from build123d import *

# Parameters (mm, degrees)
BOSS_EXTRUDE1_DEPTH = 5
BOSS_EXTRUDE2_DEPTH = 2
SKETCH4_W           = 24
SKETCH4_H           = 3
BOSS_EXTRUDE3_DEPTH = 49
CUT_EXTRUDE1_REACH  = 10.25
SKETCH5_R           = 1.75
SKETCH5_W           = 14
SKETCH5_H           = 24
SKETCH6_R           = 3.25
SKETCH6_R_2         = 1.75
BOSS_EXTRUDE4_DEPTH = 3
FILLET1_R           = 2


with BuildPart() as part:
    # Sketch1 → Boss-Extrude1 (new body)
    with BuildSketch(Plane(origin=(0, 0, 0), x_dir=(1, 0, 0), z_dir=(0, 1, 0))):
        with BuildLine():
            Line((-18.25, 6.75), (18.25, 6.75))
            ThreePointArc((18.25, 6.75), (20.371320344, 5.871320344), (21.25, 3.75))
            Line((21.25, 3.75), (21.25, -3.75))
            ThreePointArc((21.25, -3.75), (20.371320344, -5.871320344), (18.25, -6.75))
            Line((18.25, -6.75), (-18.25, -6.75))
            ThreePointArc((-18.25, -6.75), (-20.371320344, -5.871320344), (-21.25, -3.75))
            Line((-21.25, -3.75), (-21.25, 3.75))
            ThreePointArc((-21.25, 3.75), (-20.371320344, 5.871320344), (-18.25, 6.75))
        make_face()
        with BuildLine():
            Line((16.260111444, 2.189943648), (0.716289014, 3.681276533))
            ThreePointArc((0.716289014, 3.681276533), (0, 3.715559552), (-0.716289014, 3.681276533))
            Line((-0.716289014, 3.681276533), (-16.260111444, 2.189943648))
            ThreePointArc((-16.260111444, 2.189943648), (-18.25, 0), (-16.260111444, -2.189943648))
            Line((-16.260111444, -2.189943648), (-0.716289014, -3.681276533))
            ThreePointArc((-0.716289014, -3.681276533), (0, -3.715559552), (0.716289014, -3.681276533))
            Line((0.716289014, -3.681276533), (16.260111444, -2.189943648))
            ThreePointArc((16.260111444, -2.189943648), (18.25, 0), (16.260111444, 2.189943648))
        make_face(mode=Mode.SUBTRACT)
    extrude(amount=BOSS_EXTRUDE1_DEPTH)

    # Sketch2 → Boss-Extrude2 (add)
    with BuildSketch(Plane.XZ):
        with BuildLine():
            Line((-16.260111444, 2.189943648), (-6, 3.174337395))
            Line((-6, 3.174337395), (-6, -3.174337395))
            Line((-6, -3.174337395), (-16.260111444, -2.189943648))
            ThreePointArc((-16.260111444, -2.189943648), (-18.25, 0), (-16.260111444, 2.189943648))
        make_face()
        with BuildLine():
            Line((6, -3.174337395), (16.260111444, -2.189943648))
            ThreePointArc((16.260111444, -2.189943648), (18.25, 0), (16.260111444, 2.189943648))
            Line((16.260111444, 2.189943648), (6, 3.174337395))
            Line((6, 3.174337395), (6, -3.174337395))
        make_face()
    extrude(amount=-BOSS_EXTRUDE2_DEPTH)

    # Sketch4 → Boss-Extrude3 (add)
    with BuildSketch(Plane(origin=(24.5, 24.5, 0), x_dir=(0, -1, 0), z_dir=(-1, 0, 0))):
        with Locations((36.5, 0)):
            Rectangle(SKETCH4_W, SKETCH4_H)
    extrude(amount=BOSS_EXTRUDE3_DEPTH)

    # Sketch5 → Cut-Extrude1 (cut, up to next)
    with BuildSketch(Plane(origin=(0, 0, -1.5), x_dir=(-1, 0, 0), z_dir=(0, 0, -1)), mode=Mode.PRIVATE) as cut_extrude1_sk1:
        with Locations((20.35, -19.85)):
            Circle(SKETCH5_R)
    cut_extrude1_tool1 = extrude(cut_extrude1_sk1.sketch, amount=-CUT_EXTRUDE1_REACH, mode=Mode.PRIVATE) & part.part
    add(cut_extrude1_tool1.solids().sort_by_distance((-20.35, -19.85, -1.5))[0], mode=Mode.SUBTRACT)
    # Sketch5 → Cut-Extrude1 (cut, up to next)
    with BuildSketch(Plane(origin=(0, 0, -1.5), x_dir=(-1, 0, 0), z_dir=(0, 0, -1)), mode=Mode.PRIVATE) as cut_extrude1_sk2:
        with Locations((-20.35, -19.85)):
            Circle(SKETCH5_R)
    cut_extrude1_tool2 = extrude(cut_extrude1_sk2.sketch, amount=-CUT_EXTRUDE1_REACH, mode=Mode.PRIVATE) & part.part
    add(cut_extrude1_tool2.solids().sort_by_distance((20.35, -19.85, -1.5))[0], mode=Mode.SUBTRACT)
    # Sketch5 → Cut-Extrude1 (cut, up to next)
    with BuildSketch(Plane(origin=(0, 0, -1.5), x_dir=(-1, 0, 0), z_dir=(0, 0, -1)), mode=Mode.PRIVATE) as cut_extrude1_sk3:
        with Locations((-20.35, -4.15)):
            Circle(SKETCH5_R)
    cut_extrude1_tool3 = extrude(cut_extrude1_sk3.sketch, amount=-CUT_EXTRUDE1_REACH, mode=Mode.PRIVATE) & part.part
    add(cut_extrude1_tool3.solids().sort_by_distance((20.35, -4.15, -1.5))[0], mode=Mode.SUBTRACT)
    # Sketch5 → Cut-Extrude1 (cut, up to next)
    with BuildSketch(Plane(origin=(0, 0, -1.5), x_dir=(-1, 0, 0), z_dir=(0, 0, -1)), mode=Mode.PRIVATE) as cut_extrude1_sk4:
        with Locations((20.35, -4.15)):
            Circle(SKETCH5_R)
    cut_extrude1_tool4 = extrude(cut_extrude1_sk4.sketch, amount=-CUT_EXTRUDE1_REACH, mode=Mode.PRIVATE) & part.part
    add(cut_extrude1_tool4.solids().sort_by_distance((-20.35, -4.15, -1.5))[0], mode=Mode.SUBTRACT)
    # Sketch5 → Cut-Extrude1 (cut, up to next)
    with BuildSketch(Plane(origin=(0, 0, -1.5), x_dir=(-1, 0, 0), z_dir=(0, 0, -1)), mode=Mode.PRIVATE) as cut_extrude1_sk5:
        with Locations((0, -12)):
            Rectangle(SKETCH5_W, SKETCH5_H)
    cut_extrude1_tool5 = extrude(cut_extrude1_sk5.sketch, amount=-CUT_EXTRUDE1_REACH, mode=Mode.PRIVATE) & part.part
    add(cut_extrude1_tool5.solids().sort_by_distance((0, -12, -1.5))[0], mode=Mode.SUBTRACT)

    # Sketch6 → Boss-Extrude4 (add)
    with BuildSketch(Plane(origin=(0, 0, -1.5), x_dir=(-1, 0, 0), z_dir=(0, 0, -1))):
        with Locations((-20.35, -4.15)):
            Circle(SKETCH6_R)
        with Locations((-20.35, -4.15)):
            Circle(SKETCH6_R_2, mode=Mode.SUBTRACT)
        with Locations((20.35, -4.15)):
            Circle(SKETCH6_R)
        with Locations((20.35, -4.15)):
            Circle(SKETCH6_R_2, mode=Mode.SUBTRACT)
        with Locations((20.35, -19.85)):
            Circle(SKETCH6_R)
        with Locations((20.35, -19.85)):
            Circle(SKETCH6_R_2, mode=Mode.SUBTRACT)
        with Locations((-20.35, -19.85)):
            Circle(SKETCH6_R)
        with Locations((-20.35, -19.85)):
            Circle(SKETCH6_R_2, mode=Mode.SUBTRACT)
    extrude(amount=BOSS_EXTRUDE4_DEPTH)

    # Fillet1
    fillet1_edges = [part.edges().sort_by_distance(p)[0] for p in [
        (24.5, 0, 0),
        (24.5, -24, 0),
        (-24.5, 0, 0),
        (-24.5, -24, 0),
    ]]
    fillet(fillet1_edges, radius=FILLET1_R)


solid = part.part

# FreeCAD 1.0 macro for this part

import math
import FreeCAD as App
import Part
import Sketcher
from FreeCAD import Vector


def edges_at(feature, points):
    """Names of the edges that pass closest to the given points."""
    edges = feature.Shape.Edges
    near = lambda p: min(range(len(edges)), key=lambda i: edges[i].distToShape(Part.Vertex(*p))[0])
    return sorted({f"Edge{near(p) + 1}" for p in points})


def add_polygon(sketch, points):
    """Adds a closed chain of lines whose ends are joined by coincident constraints."""
    first, n = sketch.GeometryCount, len(points)
    for a, b in zip(points, points[1:] + points[:1]):
        sketch.addGeometry(Part.LineSegment(App.Vector(*a, 0), App.Vector(*b, 0)), False)
    for i in range(n):
        sketch.addConstraint(Sketcher.Constraint("Coincident", first + i, 2, first + (i + 1) % n, 1))

doc = App.newDocument("Part")
body = doc.addObject("PartDesign::Body", "Body")

sketch1 = doc.addObject("Sketcher::SketchObject", "Sketch")
body.addObject(sketch1)
sketch1.AttachmentSupport = (doc.XZ_Plane, [""])
sketch1.MapMode = "FlatFace"
sketch1.addGeometry(Part.LineSegment(Vector(18.2, -6.8, 0), Vector(-18.2, -6.8, 0)), False)
sketch1.addGeometry(Part.ArcOfCircle(Part.Circle(Vector(-18.3, -3.8, 0), Vector(0, 0, 1), 3), math.radians(180), math.radians(270)), False)
sketch1.addGeometry(Part.LineSegment(Vector(-21.2, -3.8, 0), Vector(-21.2, 3.8, 0)), False)
sketch1.addGeometry(Part.ArcOfCircle(Part.Circle(Vector(-18.3, 3.8, 0), Vector(0, 0, 1), 3), math.radians(90), math.radians(180)), False)
sketch1.addGeometry(Part.LineSegment(Vector(-18.2, 6.8, 0), Vector(18.2, 6.8, 0)), False)
sketch1.addGeometry(Part.ArcOfCircle(Part.Circle(Vector(18.3, 3.8, 0), Vector(0, 0, 1), 3), math.radians(0), math.radians(90)), False)
sketch1.addGeometry(Part.LineSegment(Vector(21.2, 3.8, 0), Vector(21.2, -3.8, 0)), False)
sketch1.addGeometry(Part.ArcOfCircle(Part.Circle(Vector(18.3, -3.8, 0), Vector(0, 0, 1), 3), math.radians(-90), math.radians(0)), False)
sketch1.addGeometry(Part.ArcOfCircle(Part.Circle(Vector(16.1, 0, 0), Vector(0, 0, 1), 2.2), math.radians(-85), math.radians(85)), False)
sketch1.addGeometry(Part.LineSegment(Vector(16.3, 2.2, 0), Vector(0.7, 3.7, 0)), False)
sketch1.addGeometry(Part.ArcOfCircle(Part.Circle(Vector(0, -3.8, 0), Vector(0, 0, 1), 7.5), math.radians(84.52), math.radians(95.48)), False)
sketch1.addGeometry(Part.LineSegment(Vector(-0.7, 3.7, 0), Vector(-16.3, 2.2, 0)), False)
sketch1.addGeometry(Part.ArcOfCircle(Part.Circle(Vector(-16.1, 0, 0), Vector(0, 0, 1), 2.2), math.radians(95), math.radians(265)), False)
sketch1.addGeometry(Part.LineSegment(Vector(-16.3, -2.2, 0), Vector(-0.7, -3.7, 0)), False)
sketch1.addGeometry(Part.ArcOfCircle(Part.Circle(Vector(0, 3.8, 0), Vector(0, 0, 1), 7.5), math.radians(-95.48), math.radians(-84.52)), False)
sketch1.addGeometry(Part.LineSegment(Vector(0.7, -3.7, 0), Vector(16.3, -2.2, 0)), False)
sketch1.addConstraint(Sketcher.Constraint("Tangent", 0, 2, 1, 2))
sketch1.addConstraint(Sketcher.Constraint("Tangent", 1, 1, 2, 1))
sketch1.addConstraint(Sketcher.Constraint("Tangent", 2, 2, 3, 2))
sketch1.addConstraint(Sketcher.Constraint("Tangent", 3, 1, 4, 1))
sketch1.addConstraint(Sketcher.Constraint("Tangent", 4, 2, 5, 2))
sketch1.addConstraint(Sketcher.Constraint("Tangent", 5, 1, 6, 1))
sketch1.addConstraint(Sketcher.Constraint("Tangent", 6, 2, 7, 2))
sketch1.addConstraint(Sketcher.Constraint("Tangent", 7, 1, 0, 1))
sketch1.addConstraint(Sketcher.Constraint("Tangent", 8, 2, 9, 1))
sketch1.addConstraint(Sketcher.Constraint("Tangent", 9, 2, 10, 1))
sketch1.addConstraint(Sketcher.Constraint("Tangent", 10, 2, 11, 1))
sketch1.addConstraint(Sketcher.Constraint("Tangent", 11, 2, 12, 1))
sketch1.addConstraint(Sketcher.Constraint("Tangent", 12, 2, 13, 1))
sketch1.addConstraint(Sketcher.Constraint("Tangent", 13, 2, 14, 1))
sketch1.addConstraint(Sketcher.Constraint("Tangent", 14, 2, 15, 1))
sketch1.addConstraint(Sketcher.Constraint("Tangent", 15, 2, 8, 1))
sketch1.addConstraint(Sketcher.Constraint("Horizontal", 0))
sketch1.addConstraint(Sketcher.Constraint("Vertical", 2))
sketch1.addConstraint(Sketcher.Constraint("Horizontal", 4))
sketch1.addConstraint(Sketcher.Constraint("Vertical", 6))
sketch1.addConstraint(Sketcher.Constraint("Equal", 1, 3))
sketch1.addConstraint(Sketcher.Constraint("Equal", 3, 5))
sketch1.addConstraint(Sketcher.Constraint("Equal", 5, 7))
sketch1.addConstraint(Sketcher.Constraint("Equal", 8, 12))
sketch1.addConstraint(Sketcher.Constraint("Equal", 10, 14))
sketch1.addConstraint(Sketcher.Constraint("Symmetric", 1, 3, 5, 3, -1, 1))
sketch1.addConstraint(Sketcher.Constraint("Symmetric", 8, 3, 12, 3, -1, 1))
sketch1.addConstraint(Sketcher.Constraint("Symmetric", 10, 3, 14, 3, -1, 1))
sketch1.addConstraint(Sketcher.Constraint("Symmetric", 9, 2, 10, 2, -2))
sketch1.addConstraint(Sketcher.Constraint("Radius", 1, 3.0))
sketch1.addConstraint(Sketcher.Constraint("Radius", 8, 2.2))
sketch1.addConstraint(Sketcher.Constraint("Radius", 10, 7.5))
sketch1.addConstraint(Sketcher.Constraint("DistanceX", 0, 2, 0, 1, 36.5))
sketch1.addConstraint(Sketcher.Constraint("DistanceY", 2, 1, 2, 2, 7.5))
sketch1.addConstraint(Sketcher.Constraint("DistanceX", 8, 3, 5, 3, 2.2))
sketch1.addConstraint(Sketcher.Constraint("Distance", 9, 15.615201))
pad1 = doc.addObject("PartDesign::Pad", "Pad")
body.addObject(pad1)
pad1.Profile = sketch1
pad1.Length = 5
pad1.Reversed = True

sketch2 = doc.addObject("Sketcher::SketchObject", "Sketch001")
body.addObject(sketch2)
sketch2.AttachmentSupport = (doc.XZ_Plane, [""])
sketch2.MapMode = "FlatFace"
sketch2.addGeometry(Part.LineSegment(Vector(-6, 3.2, 0), Vector(-16.3, 2.2, 0)), False)
sketch2.addGeometry(Part.ArcOfCircle(Part.Circle(Vector(-16.1, 0, 0), Vector(0, 0, 1), 2.2), math.radians(95), math.radians(265)), False)
sketch2.addGeometry(Part.LineSegment(Vector(-16.3, -2.2, 0), Vector(-6, -3.2, 0)), False)
sketch2.addGeometry(Part.LineSegment(Vector(-6, -3.2, 0), Vector(-6, 3.2, 0)), False)
sketch2.addGeometry(Part.LineSegment(Vector(6, -3.2, 0), Vector(16.3, -2.2, 0)), False)
sketch2.addGeometry(Part.ArcOfCircle(Part.Circle(Vector(16.1, 0, 0), Vector(0, 0, 1), 2.2), math.radians(-85), math.radians(85)), False)
sketch2.addGeometry(Part.LineSegment(Vector(16.3, 2.2, 0), Vector(6, 3.2, 0)), False)
sketch2.addGeometry(Part.LineSegment(Vector(6, 3.2, 0), Vector(6, -3.2, 0)), False)
sketch2.addConstraint(Sketcher.Constraint("Tangent", 0, 2, 1, 1))
sketch2.addConstraint(Sketcher.Constraint("Tangent", 1, 2, 2, 1))
sketch2.addConstraint(Sketcher.Constraint("Coincident", 2, 2, 3, 1))
sketch2.addConstraint(Sketcher.Constraint("Coincident", 3, 2, 0, 1))
sketch2.addConstraint(Sketcher.Constraint("Tangent", 4, 2, 5, 1))
sketch2.addConstraint(Sketcher.Constraint("Tangent", 5, 2, 6, 1))
sketch2.addConstraint(Sketcher.Constraint("Coincident", 6, 2, 7, 1))
sketch2.addConstraint(Sketcher.Constraint("Coincident", 7, 2, 4, 1))
sketch2.addConstraint(Sketcher.Constraint("Vertical", 3))
sketch2.addConstraint(Sketcher.Constraint("Vertical", 7))
sketch2.addConstraint(Sketcher.Constraint("Equal", 1, 5))
sketch2.addConstraint(Sketcher.Constraint("Symmetric", 1, 3, 5, 3, -1, 1))
sketch2.addConstraint(Sketcher.Constraint("Symmetric", 2, 2, 6, 2, -1, 1))
sketch2.addConstraint(Sketcher.Constraint("Symmetric", 1, 2, 4, 2, -2))
sketch2.addConstraint(Sketcher.Constraint("Parallel", 0, 4))
sketch2.addConstraint(Sketcher.Constraint("Radius", 1, 2.2))
sketch2.addConstraint(Sketcher.Constraint("DistanceX", 2, 2, -1, 1, 6.0))
sketch2.addConstraint(Sketcher.Constraint("DistanceX", 1, 3, 5, 3, 32.1))
sketch2.addConstraint(Sketcher.Constraint("DistanceY", 3, 1, 3, 2, 6.348675))
pad2 = doc.addObject("PartDesign::Pad", "Pad001")
body.addObject(pad2)
pad2.Profile = sketch2
pad2.Length = 2
pad2.Reversed = True

sketch3 = doc.addObject("Sketcher::SketchObject", "Sketch002")
body.addObject(sketch3)
sketch3.AttachmentSupport = (doc.YZ_Plane, [""])
sketch3.MapMode = "FlatFace"
sketch3.AttachmentOffset = App.Placement(Vector(0, 0, 24.5), App.Rotation())
add_polygon(sketch3, [(0, 1.5), (0, -1.5), (-24, -1.5), (-24, 1.5)])
sketch3.addConstraint(Sketcher.Constraint("Vertical", 0))
sketch3.addConstraint(Sketcher.Constraint("Horizontal", 1))
sketch3.addConstraint(Sketcher.Constraint("Vertical", 2))
sketch3.addConstraint(Sketcher.Constraint("Horizontal", 3))
sketch3.addConstraint(Sketcher.Constraint("Symmetric", 0, 2, 3, 2, -1, 1))
sketch3.addConstraint(Sketcher.Constraint("DistanceX", 1, 2, 1, 1, 24.0))
sketch3.addConstraint(Sketcher.Constraint("DistanceY", 0, 2, 0, 1, 3.0))
pad3 = doc.addObject("PartDesign::Pad", "Pad002")
body.addObject(pad3)
pad3.Profile = sketch3
pad3.Length = 49
pad3.Reversed = True

sketch4 = doc.addObject("Sketcher::SketchObject", "Sketch003")
body.addObject(sketch4)
sketch4.AttachmentSupport = (doc.XY_Plane, [""])
sketch4.MapMode = "FlatFace"
sketch4.AttachmentOffset = App.Placement(Vector(0, 0, -1.5), App.Rotation())
sketch4.addGeometry(Part.Circle(Vector(-20.4, -19.9, 0), Vector(0, 0, 1), 1.8), False)
sketch4.addConstraint(Sketcher.Constraint("Diameter", 0, 3.5))
sketch4.addConstraint(Sketcher.Constraint("DistanceX", 0, 3, -1, 1, 20.35))
sketch4.addConstraint(Sketcher.Constraint("DistanceY", 0, 3, -1, 1, 19.85))
pocket1 = doc.addObject("PartDesign::Pocket", "Pocket")
body.addObject(pocket1)
pocket1.Profile = sketch4
pocket1.Type = "UpToFirst"
pocket1.Reversed = True

sketch5 = doc.addObject("Sketcher::SketchObject", "Sketch004")
body.addObject(sketch5)
sketch5.AttachmentSupport = (doc.XY_Plane, [""])
sketch5.MapMode = "FlatFace"
sketch5.AttachmentOffset = App.Placement(Vector(0, 0, -1.5), App.Rotation())
sketch5.addGeometry(Part.Circle(Vector(20.4, -19.9, 0), Vector(0, 0, 1), 1.8), False)
sketch5.addConstraint(Sketcher.Constraint("Diameter", 0, 3.5))
sketch5.addConstraint(Sketcher.Constraint("DistanceX", -1, 1, 0, 3, 20.35))
sketch5.addConstraint(Sketcher.Constraint("DistanceY", 0, 3, -1, 1, 19.85))
pocket2 = doc.addObject("PartDesign::Pocket", "Pocket001")
body.addObject(pocket2)
pocket2.Profile = sketch5
pocket2.Type = "UpToFirst"
pocket2.Reversed = True

sketch6 = doc.addObject("Sketcher::SketchObject", "Sketch005")
body.addObject(sketch6)
sketch6.AttachmentSupport = (doc.XY_Plane, [""])
sketch6.MapMode = "FlatFace"
sketch6.AttachmentOffset = App.Placement(Vector(0, 0, -1.5), App.Rotation())
sketch6.addGeometry(Part.Circle(Vector(20.4, -4.2, 0), Vector(0, 0, 1), 1.8), False)
sketch6.addConstraint(Sketcher.Constraint("Diameter", 0, 3.5))
sketch6.addConstraint(Sketcher.Constraint("DistanceX", -1, 1, 0, 3, 20.35))
sketch6.addConstraint(Sketcher.Constraint("DistanceY", 0, 3, -1, 1, 4.15))
pocket3 = doc.addObject("PartDesign::Pocket", "Pocket002")
body.addObject(pocket3)
pocket3.Profile = sketch6
pocket3.Type = "UpToFirst"
pocket3.Reversed = True

sketch7 = doc.addObject("Sketcher::SketchObject", "Sketch006")
body.addObject(sketch7)
sketch7.AttachmentSupport = (doc.XY_Plane, [""])
sketch7.MapMode = "FlatFace"
sketch7.AttachmentOffset = App.Placement(Vector(0, 0, -1.5), App.Rotation())
sketch7.addGeometry(Part.Circle(Vector(-20.4, -4.2, 0), Vector(0, 0, 1), 1.8), False)
sketch7.addConstraint(Sketcher.Constraint("Diameter", 0, 3.5))
sketch7.addConstraint(Sketcher.Constraint("DistanceX", 0, 3, -1, 1, 20.35))
sketch7.addConstraint(Sketcher.Constraint("DistanceY", 0, 3, -1, 1, 4.15))
pocket4 = doc.addObject("PartDesign::Pocket", "Pocket003")
body.addObject(pocket4)
pocket4.Profile = sketch7
pocket4.Type = "UpToFirst"
pocket4.Reversed = True

sketch8 = doc.addObject("Sketcher::SketchObject", "Sketch007")
body.addObject(sketch8)
sketch8.AttachmentSupport = (doc.XY_Plane, [""])
sketch8.MapMode = "FlatFace"
sketch8.AttachmentOffset = App.Placement(Vector(0, 0, -1.5), App.Rotation())
add_polygon(sketch8, [(7, 0), (7, -24), (-7, -24), (-7, 0)])
sketch8.addConstraint(Sketcher.Constraint("Vertical", 0))
sketch8.addConstraint(Sketcher.Constraint("Horizontal", 1))
sketch8.addConstraint(Sketcher.Constraint("Vertical", 2))
sketch8.addConstraint(Sketcher.Constraint("Horizontal", 3))
sketch8.addConstraint(Sketcher.Constraint("Symmetric", 2, 2, 3, 2, -1, 1))
sketch8.addConstraint(Sketcher.Constraint("DistanceX", 1, 2, 1, 1, 14.0))
sketch8.addConstraint(Sketcher.Constraint("DistanceY", 0, 2, 0, 1, 24.0))
pocket5 = doc.addObject("PartDesign::Pocket", "Pocket004")
body.addObject(pocket5)
pocket5.Profile = sketch8
pocket5.Type = "UpToFirst"
pocket5.Reversed = True

sketch9 = doc.addObject("Sketcher::SketchObject", "Sketch008")
body.addObject(sketch9)
sketch9.AttachmentSupport = (doc.XY_Plane, [""])
sketch9.MapMode = "FlatFace"
sketch9.AttachmentOffset = App.Placement(Vector(0, 0, -1.5), App.Rotation())
sketch9.addGeometry(Part.Circle(Vector(20.4, -4.2, 0), Vector(0, 0, 1), 3.2), False)
sketch9.addGeometry(Part.Circle(Vector(20.4, -4.2, 0), Vector(0, 0, 1), 1.8), False)
sketch9.addGeometry(Part.Circle(Vector(-20.4, -4.2, 0), Vector(0, 0, 1), 3.2), False)
sketch9.addGeometry(Part.Circle(Vector(-20.4, -4.2, 0), Vector(0, 0, 1), 1.8), False)
sketch9.addGeometry(Part.Circle(Vector(-20.4, -19.9, 0), Vector(0, 0, 1), 3.2), False)
sketch9.addGeometry(Part.Circle(Vector(-20.4, -19.9, 0), Vector(0, 0, 1), 1.8), False)
sketch9.addGeometry(Part.Circle(Vector(20.4, -19.9, 0), Vector(0, 0, 1), 3.2), False)
sketch9.addGeometry(Part.Circle(Vector(20.4, -19.9, 0), Vector(0, 0, 1), 1.8), False)
sketch9.addConstraint(Sketcher.Constraint("Coincident", 1, 3, 0, 3))
sketch9.addConstraint(Sketcher.Constraint("Coincident", 3, 3, 2, 3))
sketch9.addConstraint(Sketcher.Constraint("Coincident", 5, 3, 4, 3))
sketch9.addConstraint(Sketcher.Constraint("Coincident", 7, 3, 6, 3))
sketch9.addConstraint(Sketcher.Constraint("Equal", 0, 2))
sketch9.addConstraint(Sketcher.Constraint("Equal", 1, 3))
sketch9.addConstraint(Sketcher.Constraint("Equal", 2, 4))
sketch9.addConstraint(Sketcher.Constraint("Equal", 3, 5))
sketch9.addConstraint(Sketcher.Constraint("Equal", 4, 6))
sketch9.addConstraint(Sketcher.Constraint("Equal", 5, 7))
sketch9.addConstraint(Sketcher.Constraint("Symmetric", 0, 3, 2, 3, -2))
sketch9.addConstraint(Sketcher.Constraint("Symmetric", 4, 3, 6, 3, -2))
sketch9.addConstraint(Sketcher.Constraint("Vertical", 3, 3, 4, 3))
sketch9.addConstraint(Sketcher.Constraint("Diameter", 0, 6.5))
sketch9.addConstraint(Sketcher.Constraint("Diameter", 1, 3.5))
sketch9.addConstraint(Sketcher.Constraint("DistanceX", 2, 3, 0, 3, 40.7))
sketch9.addConstraint(Sketcher.Constraint("DistanceY", 4, 3, 2, 3, 15.7))
sketch9.addConstraint(Sketcher.Constraint("DistanceY", 0, 3, -1, 1, 4.15))
pad4 = doc.addObject("PartDesign::Pad", "Pad003")
body.addObject(pad4)
pad4.Profile = sketch9
pad4.Length = 3
pad4.Reversed = True
doc.recompute()

fillet = doc.addObject("PartDesign::Fillet", "Fillet")
body.addObject(fillet)
fillet.Base = (pad4, edges_at(pad4, [
    (24.5, 0, 0),
    (24.5, -24, 0),
    (-24.5, 0, 0),
    (-24.5, -24, 0),
]))
fillet.Radius = 2

doc.recompute()
